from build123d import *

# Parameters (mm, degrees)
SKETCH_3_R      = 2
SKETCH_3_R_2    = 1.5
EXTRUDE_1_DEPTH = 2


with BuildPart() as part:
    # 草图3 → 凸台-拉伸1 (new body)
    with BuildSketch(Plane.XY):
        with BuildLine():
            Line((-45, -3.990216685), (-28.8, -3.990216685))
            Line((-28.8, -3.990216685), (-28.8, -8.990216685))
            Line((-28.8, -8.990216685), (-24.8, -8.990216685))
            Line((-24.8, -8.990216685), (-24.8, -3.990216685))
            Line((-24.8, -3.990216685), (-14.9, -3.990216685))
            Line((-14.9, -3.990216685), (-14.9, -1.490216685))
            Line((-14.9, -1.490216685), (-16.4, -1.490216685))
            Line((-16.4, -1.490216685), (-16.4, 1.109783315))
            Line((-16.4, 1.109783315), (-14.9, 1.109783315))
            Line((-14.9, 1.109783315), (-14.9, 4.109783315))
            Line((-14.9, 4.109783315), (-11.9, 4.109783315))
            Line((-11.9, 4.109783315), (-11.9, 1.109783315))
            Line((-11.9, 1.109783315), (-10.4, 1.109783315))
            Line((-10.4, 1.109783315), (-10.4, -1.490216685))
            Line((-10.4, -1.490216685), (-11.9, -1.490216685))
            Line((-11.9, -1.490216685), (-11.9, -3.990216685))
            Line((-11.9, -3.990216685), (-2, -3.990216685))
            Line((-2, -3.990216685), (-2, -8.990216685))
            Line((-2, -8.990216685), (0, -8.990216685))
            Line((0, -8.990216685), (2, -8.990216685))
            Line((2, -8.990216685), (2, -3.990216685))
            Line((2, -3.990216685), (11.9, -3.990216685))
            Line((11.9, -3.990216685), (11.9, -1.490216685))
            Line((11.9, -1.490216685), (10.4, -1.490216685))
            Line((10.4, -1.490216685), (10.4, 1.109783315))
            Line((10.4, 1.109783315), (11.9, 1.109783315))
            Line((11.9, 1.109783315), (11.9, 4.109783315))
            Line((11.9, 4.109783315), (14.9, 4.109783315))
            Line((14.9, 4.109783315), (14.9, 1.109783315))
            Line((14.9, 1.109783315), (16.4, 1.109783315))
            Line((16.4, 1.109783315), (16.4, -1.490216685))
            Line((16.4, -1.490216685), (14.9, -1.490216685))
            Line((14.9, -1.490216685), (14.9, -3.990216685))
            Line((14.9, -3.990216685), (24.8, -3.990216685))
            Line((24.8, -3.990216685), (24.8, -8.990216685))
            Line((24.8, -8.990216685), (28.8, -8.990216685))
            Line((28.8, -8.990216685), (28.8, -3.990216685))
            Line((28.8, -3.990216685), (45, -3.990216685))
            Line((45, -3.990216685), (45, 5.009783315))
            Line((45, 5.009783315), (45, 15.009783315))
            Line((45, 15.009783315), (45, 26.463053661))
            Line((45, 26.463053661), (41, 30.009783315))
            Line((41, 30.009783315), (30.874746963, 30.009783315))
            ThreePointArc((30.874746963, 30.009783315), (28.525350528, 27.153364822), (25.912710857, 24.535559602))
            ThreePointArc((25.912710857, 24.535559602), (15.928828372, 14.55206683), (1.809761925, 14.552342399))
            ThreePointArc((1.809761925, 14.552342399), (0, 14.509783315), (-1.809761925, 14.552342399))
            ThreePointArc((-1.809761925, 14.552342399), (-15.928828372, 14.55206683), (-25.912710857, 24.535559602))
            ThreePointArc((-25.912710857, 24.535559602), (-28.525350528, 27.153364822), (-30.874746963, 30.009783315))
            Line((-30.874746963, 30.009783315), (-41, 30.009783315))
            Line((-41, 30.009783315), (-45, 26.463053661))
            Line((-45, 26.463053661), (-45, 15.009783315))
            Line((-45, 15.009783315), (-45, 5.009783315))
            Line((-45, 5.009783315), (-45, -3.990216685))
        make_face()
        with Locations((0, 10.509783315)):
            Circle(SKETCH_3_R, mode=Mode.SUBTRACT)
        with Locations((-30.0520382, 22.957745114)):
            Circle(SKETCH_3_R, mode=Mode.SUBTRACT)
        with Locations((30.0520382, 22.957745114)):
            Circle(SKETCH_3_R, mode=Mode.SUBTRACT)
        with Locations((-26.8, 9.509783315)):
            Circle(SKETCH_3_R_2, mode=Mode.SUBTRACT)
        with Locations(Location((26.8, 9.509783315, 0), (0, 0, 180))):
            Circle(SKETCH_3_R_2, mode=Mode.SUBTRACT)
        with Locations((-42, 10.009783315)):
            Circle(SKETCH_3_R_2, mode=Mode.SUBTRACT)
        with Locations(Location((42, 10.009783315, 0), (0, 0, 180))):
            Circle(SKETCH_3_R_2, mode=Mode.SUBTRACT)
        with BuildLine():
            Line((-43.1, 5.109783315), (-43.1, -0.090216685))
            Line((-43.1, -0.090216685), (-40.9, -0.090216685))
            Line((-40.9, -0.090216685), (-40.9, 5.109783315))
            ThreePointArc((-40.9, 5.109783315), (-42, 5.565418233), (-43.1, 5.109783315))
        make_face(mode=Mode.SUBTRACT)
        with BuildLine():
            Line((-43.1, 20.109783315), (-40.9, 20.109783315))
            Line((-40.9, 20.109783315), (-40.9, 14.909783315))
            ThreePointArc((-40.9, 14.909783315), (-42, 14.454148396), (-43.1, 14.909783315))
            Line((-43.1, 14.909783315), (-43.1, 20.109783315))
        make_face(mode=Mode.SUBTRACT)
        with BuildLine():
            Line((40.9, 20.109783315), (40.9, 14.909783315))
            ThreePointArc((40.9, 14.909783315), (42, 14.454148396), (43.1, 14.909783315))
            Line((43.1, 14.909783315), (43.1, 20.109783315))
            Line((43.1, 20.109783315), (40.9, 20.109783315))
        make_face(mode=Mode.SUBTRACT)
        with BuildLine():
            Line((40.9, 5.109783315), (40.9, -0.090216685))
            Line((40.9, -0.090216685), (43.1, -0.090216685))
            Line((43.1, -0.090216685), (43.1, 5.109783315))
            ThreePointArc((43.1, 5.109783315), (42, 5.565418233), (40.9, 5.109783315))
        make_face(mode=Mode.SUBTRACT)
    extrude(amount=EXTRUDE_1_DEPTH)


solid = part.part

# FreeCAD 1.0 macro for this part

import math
import FreeCAD as App
import Part
import Sketcher

doc = App.newDocument("Part")
body = doc.addObject("PartDesign::Body", "Body")

sketch1 = body.newObject("Sketcher::SketchObject", "Sketch")
sketch1.AttachmentSupport = (doc.getObject("XY_Plane"), [""])
sketch1.MapMode = "FlatFace"
sketch1.addGeometry([
    Part.LineSegment(App.Vector(-45, -4, 0), App.Vector(-28.8, -4, 0)),
    Part.LineSegment(App.Vector(-28.8, -4, 0), App.Vector(-28.8, -9, 0)),
    Part.LineSegment(App.Vector(-28.8, -9, 0), App.Vector(-24.8, -9, 0)),
    Part.LineSegment(App.Vector(-24.8, -9, 0), App.Vector(-24.8, -4, 0)),
    Part.LineSegment(App.Vector(-24.8, -4, 0), App.Vector(-14.9, -4, 0)),
    Part.LineSegment(App.Vector(-14.9, -4, 0), App.Vector(-14.9, -1.5, 0)),
    Part.LineSegment(App.Vector(-14.9, -1.5, 0), App.Vector(-16.4, -1.5, 0)),
    Part.LineSegment(App.Vector(-16.4, -1.5, 0), App.Vector(-16.4, 1.1, 0)),
    Part.LineSegment(App.Vector(-16.4, 1.1, 0), App.Vector(-14.9, 1.1, 0)),
    Part.LineSegment(App.Vector(-14.9, 1.1, 0), App.Vector(-14.9, 4.1, 0)),
    Part.LineSegment(App.Vector(-14.9, 4.1, 0), App.Vector(-11.9, 4.1, 0)),
    Part.LineSegment(App.Vector(-11.9, 4.1, 0), App.Vector(-11.9, 1.1, 0)),
    Part.LineSegment(App.Vector(-11.9, 1.1, 0), App.Vector(-10.4, 1.1, 0)),
    Part.LineSegment(App.Vector(-10.4, 1.1, 0), App.Vector(-10.4, -1.5, 0)),
    Part.LineSegment(App.Vector(-10.4, -1.5, 0), App.Vector(-11.9, -1.5, 0)),
    Part.LineSegment(App.Vector(-11.9, -1.5, 0), App.Vector(-11.9, -4, 0)),
    Part.LineSegment(App.Vector(-11.9, -4, 0), App.Vector(-2, -4, 0)),
    Part.LineSegment(App.Vector(-2, -4, 0), App.Vector(-2, -9, 0)),
    Part.LineSegment(App.Vector(-2, -9, 0), App.Vector(2, -9, 0)),
    Part.LineSegment(App.Vector(2, -9, 0), App.Vector(2, -4, 0)),
    Part.LineSegment(App.Vector(2, -4, 0), App.Vector(11.9, -4, 0)),
    Part.LineSegment(App.Vector(11.9, -4, 0), App.Vector(11.9, -1.5, 0)),
    Part.LineSegment(App.Vector(11.9, -1.5, 0), App.Vector(10.4, -1.5, 0)),
    Part.LineSegment(App.Vector(10.4, -1.5, 0), App.Vector(10.4, 1.1, 0)),
    Part.LineSegment(App.Vector(10.4, 1.1, 0), App.Vector(11.9, 1.1, 0)),
    Part.LineSegment(App.Vector(11.9, 1.1, 0), App.Vector(11.9, 4.1, 0)),
    Part.LineSegment(App.Vector(11.9, 4.1, 0), App.Vector(14.9, 4.1, 0)),
    Part.LineSegment(App.Vector(14.9, 4.1, 0), App.Vector(14.9, 1.1, 0)),
    Part.LineSegment(App.Vector(14.9, 1.1, 0), App.Vector(16.4, 1.1, 0)),
    Part.LineSegment(App.Vector(16.4, 1.1, 0), App.Vector(16.4, -1.5, 0)),
    Part.LineSegment(App.Vector(16.4, -1.5, 0), App.Vector(14.9, -1.5, 0)),
    Part.LineSegment(App.Vector(14.9, -1.5, 0), App.Vector(14.9, -4, 0)),
    Part.LineSegment(App.Vector(14.9, -4, 0), App.Vector(24.8, -4, 0)),
    Part.LineSegment(App.Vector(24.8, -4, 0), App.Vector(24.8, -9, 0)),
    Part.LineSegment(App.Vector(24.8, -9, 0), App.Vector(28.8, -9, 0)),
    Part.LineSegment(App.Vector(28.8, -9, 0), App.Vector(28.8, -4, 0)),
    Part.LineSegment(App.Vector(28.8, -4, 0), App.Vector(45, -4, 0)),
    Part.LineSegment(App.Vector(45, -4, 0), App.Vector(45, 26.5, 0)),
    Part.LineSegment(App.Vector(45, 26.5, 0), App.Vector(41, 30, 0)),
    Part.LineSegment(App.Vector(41, 30, 0), App.Vector(30.9, 30, 0)),
    Part.ArcOfCircle(Part.Circle(App.Vector(0, 53, 0), App.Vector(0, 0, 1), 38.5), math.radians(-47.7), math.radians(-36.68)),
    Part.ArcOfCircle(Part.Circle(App.Vector(8.9, 31.6, 0), App.Vector(0, 0, 1), 18.4), math.radians(-113), math.radians(-23)),
    Part.ArcOfCircle(Part.Circle(App.Vector(0, 53, 0), App.Vector(0, 0, 1), 38.5), math.radians(-92.69), math.radians(-87.31)),
    Part.ArcOfCircle(Part.Circle(App.Vector(-8.9, 31.6, 0), App.Vector(0, 0, 1), 18.4), math.radians(-157), math.radians(-67)),
    Part.ArcOfCircle(Part.Circle(App.Vector(0, 53, 0), App.Vector(0, 0, 1), 38.5), math.radians(-143.32), math.radians(-132.3)),
    Part.LineSegment(App.Vector(-30.9, 30, 0), App.Vector(-41, 30, 0)),
    Part.LineSegment(App.Vector(-41, 30, 0), App.Vector(-45, 26.5, 0)),
    Part.LineSegment(App.Vector(-45, 26.5, 0), App.Vector(-45, -4, 0)),
    Part.LineSegment(App.Vector(-43.1, -0.1, 0), App.Vector(-43.1, 5.1, 0)),
    Part.ArcOfCircle(Part.Circle(App.Vector(-42, 4, 0), App.Vector(0, 0, 1), 1.6), math.radians(45), math.radians(135)),
    Part.LineSegment(App.Vector(-40.9, 5.1, 0), App.Vector(-40.9, -0.1, 0)),
    Part.LineSegment(App.Vector(-40.9, -0.1, 0), App.Vector(-43.1, -0.1, 0)),
    Part.Circle(App.Vector(-42, 10, 0), App.Vector(0, 0, 1), 1.5),
    Part.Circle(App.Vector(-26.8, 9.5, 0), App.Vector(0, 0, 1), 1.5),
    Part.LineSegment(App.Vector(40.9, -0.1, 0), App.Vector(40.9, 5.1, 0)),
    Part.ArcOfCircle(Part.Circle(App.Vector(42, 4, 0), App.Vector(0, 0, 1), 1.6), math.radians(45), math.radians(135)),
    Part.LineSegment(App.Vector(43.1, 5.1, 0), App.Vector(43.1, -0.1, 0)),
    Part.LineSegment(App.Vector(43.1, -0.1, 0), App.Vector(40.9, -0.1, 0)),
    Part.Circle(App.Vector(0, 10.5, 0), App.Vector(0, 0, 1), 2),
    Part.Circle(App.Vector(26.8, 9.5, 0), App.Vector(0, 0, 1), 1.5),
    Part.Circle(App.Vector(42, 10, 0), App.Vector(0, 0, 1), 1.5),
    Part.LineSegment(App.Vector(-43.1, 14.9, 0), App.Vector(-43.1, 20.1, 0)),
    Part.LineSegment(App.Vector(-43.1, 20.1, 0), App.Vector(-40.9, 20.1, 0)),
    Part.LineSegment(App.Vector(-40.9, 20.1, 0), App.Vector(-40.9, 14.9, 0)),
    Part.ArcOfCircle(Part.Circle(App.Vector(-42, 16, 0), App.Vector(0, 0, 1), 1.6), math.radians(-135), math.radians(-45)),
    Part.Circle(App.Vector(-30.1, 23, 0), App.Vector(0, 0, 1), 2),
    Part.LineSegment(App.Vector(40.9, 14.9, 0), App.Vector(40.9, 20.1, 0)),
    Part.LineSegment(App.Vector(40.9, 20.1, 0), App.Vector(43.1, 20.1, 0)),
    Part.LineSegment(App.Vector(43.1, 20.1, 0), App.Vector(43.1, 14.9, 0)),
    Part.ArcOfCircle(Part.Circle(App.Vector(42, 16, 0), App.Vector(0, 0, 1), 1.6), math.radians(-135), math.radians(-45)),
    Part.Circle(App.Vector(30.1, 23, 0), App.Vector(0, 0, 1), 2),
], False)
sketch1.addConstraint([
    Sketcher.Constraint("Coincident", 0, 2, 1, 1),
    Sketcher.Constraint("Coincident", 1, 2, 2, 1),
    Sketcher.Constraint("Coincident", 2, 2, 3, 1),
    Sketcher.Constraint("Coincident", 3, 2, 4, 1),
    Sketcher.Constraint("Coincident", 4, 2, 5, 1),
    Sketcher.Constraint("Coincident", 5, 2, 6, 1),
    Sketcher.Constraint("Coincident", 6, 2, 7, 1),
    Sketcher.Constraint("Coincident", 7, 2, 8, 1),
    Sketcher.Constraint("Coincident", 8, 2, 9, 1),
    Sketcher.Constraint("Coincident", 9, 2, 10, 1),
    Sketcher.Constraint("Coincident", 10, 2, 11, 1),
    Sketcher.Constraint("Coincident", 11, 2, 12, 1),
    Sketcher.Constraint("Coincident", 12, 2, 13, 1),
    Sketcher.Constraint("Coincident", 13, 2, 14, 1),
    Sketcher.Constraint("Coincident", 14, 2, 15, 1),
    Sketcher.Constraint("Coincident", 15, 2, 16, 1),
    Sketcher.Constraint("Coincident", 16, 2, 17, 1),
    Sketcher.Constraint("Coincident", 17, 2, 18, 1),
    Sketcher.Constraint("Coincident", 18, 2, 19, 1),
    Sketcher.Constraint("Coincident", 19, 2, 20, 1),
    Sketcher.Constraint("Coincident", 20, 2, 21, 1),
    Sketcher.Constraint("Coincident", 21, 2, 22, 1),
    Sketcher.Constraint("Coincident", 22, 2, 23, 1),
    Sketcher.Constraint("Coincident", 23, 2, 24, 1),
    Sketcher.Constraint("Coincident", 24, 2, 25, 1),
    Sketcher.Constraint("Coincident", 25, 2, 26, 1),
    Sketcher.Constraint("Coincident", 26, 2, 27, 1),
    Sketcher.Constraint("Coincident", 27, 2, 28, 1),
    Sketcher.Constraint("Coincident", 28, 2, 29, 1),
    Sketcher.Constraint("Coincident", 29, 2, 30, 1),
    Sketcher.Constraint("Coincident", 30, 2, 31, 1),
    Sketcher.Constraint("Coincident", 31, 2, 32, 1),
    Sketcher.Constraint("Coincident", 32, 2, 33, 1),
    Sketcher.Constraint("Coincident", 33, 2, 34, 1),
    Sketcher.Constraint("Coincident", 34, 2, 35, 1),
    Sketcher.Constraint("Coincident", 35, 2, 36, 1),
    Sketcher.Constraint("Coincident", 36, 2, 37, 1),
    Sketcher.Constraint("Coincident", 37, 2, 38, 1),
    Sketcher.Constraint("Coincident", 38, 2, 39, 1),
    Sketcher.Constraint("Coincident", 39, 2, 40, 2),
    Sketcher.Constraint("Coincident", 40, 1, 41, 2),
    Sketcher.Constraint("Coincident", 41, 1, 42, 2),
    Sketcher.Constraint("Coincident", 42, 1, 43, 2),
    Sketcher.Constraint("Coincident", 43, 1, 44, 2),
    Sketcher.Constraint("Coincident", 44, 1, 45, 1),
    Sketcher.Constraint("Coincident", 45, 2, 46, 1),
    Sketcher.Constraint("Coincident", 46, 2, 47, 1),
    Sketcher.Constraint("Coincident", 47, 2, 0, 1),
    Sketcher.Constraint("Coincident", 48, 2, 49, 2),
    Sketcher.Constraint("Coincident", 49, 1, 50, 1),
    Sketcher.Constraint("Coincident", 50, 2, 51, 1),
    Sketcher.Constraint("Coincident", 51, 2, 48, 1),
    Sketcher.Constraint("Coincident", 54, 2, 55, 2),
    Sketcher.Constraint("Coincident", 55, 1, 56, 1),
    Sketcher.Constraint("Coincident", 56, 2, 57, 1),
    Sketcher.Constraint("Coincident", 57, 2, 54, 1),
    Sketcher.Constraint("Coincident", 61, 2, 62, 1),
    Sketcher.Constraint("Coincident", 62, 2, 63, 1),
    Sketcher.Constraint("Coincident", 63, 2, 64, 2),
    Sketcher.Constraint("Coincident", 64, 1, 61, 1),
    Sketcher.Constraint("Coincident", 66, 2, 67, 1),
    Sketcher.Constraint("Coincident", 67, 2, 68, 1),
    Sketcher.Constraint("Coincident", 68, 2, 69, 2),
    Sketcher.Constraint("Coincident", 69, 1, 66, 1),
    Sketcher.Constraint("Horizontal", 0),
    Sketcher.Constraint("Vertical", 1),
    Sketcher.Constraint("Horizontal", 2),
    Sketcher.Constraint("Vertical", 3),
    Sketcher.Constraint("Horizontal", 4),
    Sketcher.Constraint("Vertical", 5),
    Sketcher.Constraint("Horizontal", 6),
    Sketcher.Constraint("Vertical", 7),
    Sketcher.Constraint("Horizontal", 8),
    Sketcher.Constraint("Vertical", 9),
    Sketcher.Constraint("Horizontal", 10),
    Sketcher.Constraint("Vertical", 11),
    Sketcher.Constraint("Horizontal", 12),
    Sketcher.Constraint("Vertical", 13),
    Sketcher.Constraint("Horizontal", 14),
    Sketcher.Constraint("Vertical", 15),
    Sketcher.Constraint("Horizontal", 16),
    Sketcher.Constraint("Vertical", 17),
    Sketcher.Constraint("Horizontal", 18),
    Sketcher.Constraint("Vertical", 19),
    Sketcher.Constraint("Horizontal", 20),
    Sketcher.Constraint("Vertical", 21),
    Sketcher.Constraint("Horizontal", 22),
    Sketcher.Constraint("Vertical", 23),
    Sketcher.Constraint("Horizontal", 24),
    Sketcher.Constraint("Vertical", 25),
    Sketcher.Constraint("Horizontal", 26),
    Sketcher.Constraint("Vertical", 27),
    Sketcher.Constraint("Horizontal", 28),
    Sketcher.Constraint("Vertical", 29),
    Sketcher.Constraint("Horizontal", 30),
    Sketcher.Constraint("Vertical", 31),
    Sketcher.Constraint("Horizontal", 32),
    Sketcher.Constraint("Vertical", 33),
    Sketcher.Constraint("Horizontal", 34),
    Sketcher.Constraint("Vertical", 35),
    Sketcher.Constraint("Horizontal", 36),
    Sketcher.Constraint("Vertical", 37),
    Sketcher.Constraint("Horizontal", 39),
    Sketcher.Constraint("Horizontal", 45),
    Sketcher.Constraint("Vertical", 47),
    Sketcher.Constraint("Vertical", 48),
    Sketcher.Constraint("Vertical", 50),
    Sketcher.Constraint("Horizontal", 51),
    Sketcher.Constraint("Vertical", 54),
    Sketcher.Constraint("Vertical", 56),
    Sketcher.Constraint("Horizontal", 57),
    Sketcher.Constraint("Vertical", 61),
    Sketcher.Constraint("Horizontal", 62),
    Sketcher.Constraint("Vertical", 63),
    Sketcher.Constraint("Vertical", 66),
    Sketcher.Constraint("Horizontal", 67),
    Sketcher.Constraint("Vertical", 68),
    Sketcher.Constraint("Coincident", 42, 3, 40, 3),
    Sketcher.Constraint("Coincident", 44, 3, 40, 3),
    Sketcher.Constraint("Equal", 40, 42),
    Sketcher.Constraint("Equal", 41, 43),
    Sketcher.Constraint("Equal", 42, 44),
    Sketcher.Constraint("Equal", 52, 53),
    Sketcher.Constraint("Equal", 49, 55),
    Sketcher.Constraint("Equal", 53, 59),
    Sketcher.Constraint("Equal", 59, 60),
    Sketcher.Constraint("Equal", 55, 64),
    Sketcher.Constraint("Equal", 58, 65),
    Sketcher.Constraint("Equal", 64, 69),
    Sketcher.Constraint("Equal", 65, 70),
    Sketcher.Constraint("Symmetric", 41, 3, 43, 3, -2),
    Sketcher.Constraint("Symmetric", 49, 3, 55, 3, -2),
    Sketcher.Constraint("Symmetric", 53, 3, 59, 3, -2),
    Sketcher.Constraint("Symmetric", 52, 3, 60, 3, -2),
    Sketcher.Constraint("Symmetric", 64, 3, 69, 3, -2),
    Sketcher.Constraint("Symmetric", 65, 3, 70, 3, -2),
    Sketcher.Constraint("Symmetric", 16, 2, 19, 2, -2),
    Sketcher.Constraint("Symmetric", 14, 2, 21, 2, -2),
    Sketcher.Constraint("Symmetric", 12, 2, 23, 2, -2),
    Sketcher.Constraint("Symmetric", 10, 2, 25, 2, -2),
    Sketcher.Constraint("Symmetric", 8, 2, 27, 2, -2),
    Sketcher.Constraint("Symmetric", 6, 2, 29, 2, -2),
    Sketcher.Constraint("Symmetric", 4, 2, 31, 2, -2),
    Sketcher.Constraint("Symmetric", 2, 2, 33, 2, -2),
    Sketcher.Constraint("Symmetric", 0, 2, 35, 2, -2),
    Sketcher.Constraint("Symmetric", 39, 2, 44, 1, -2),
    Sketcher.Constraint("Symmetric", 37, 2, 46, 2, -2),
    Sketcher.Constraint("Symmetric", 51, 2, 56, 2, -2),
    Sketcher.Constraint("Symmetric", 62, 2, 66, 2, -2),
    Sketcher.Constraint("PointOnObject", 58, 3, -2),
    Sketcher.Constraint("Horizontal", 0, 2, 3, 2),
    Sketcher.Constraint("Horizontal", 8, 2, 11, 2),
    Sketcher.Constraint("Horizontal", 6, 2, 13, 2),
    Sketcher.Constraint("Horizontal", 4, 2, 15, 2),
    Sketcher.Constraint("Horizontal", 2, 2, 17, 2),
    Sketcher.Constraint("Horizontal", 48, 2, 49, 1),
    Sketcher.Constraint("Horizontal", 49, 1, 54, 2),
    Sketcher.Constraint("Horizontal", 63, 2, 64, 1),
    Sketcher.Constraint("Horizontal", 64, 1, 68, 2),
    Sketcher.Constraint("Vertical", 49, 3, 52, 3),
    Sketcher.Constraint("Vertical", 52, 3, 64, 3),
    Sketcher.Constraint("Vertical", 5, 2, 8, 2),
    Sketcher.Constraint("Vertical", 11, 2, 14, 2),
    Sketcher.Constraint("Vertical", 51, 2, 61, 2),
    Sketcher.Constraint("Equal", 8, 12),
    Sketcher.Constraint("Equal", 4, 16),
    Sketcher.Constraint("Equal", 2, 18),
    Sketcher.Constraint("Equal", 39, 45),
    Sketcher.Constraint("Equal", 26, 9),
    Sketcher.Constraint("Equal", 56, 61),
    Sketcher.Constraint("Diameter", 52, 3.0),
    Sketcher.Constraint("Diameter", 58, 4.0),
    Sketcher.Constraint("Radius", 40, 38.5),
    Sketcher.Constraint("DistanceX", 2, 1, 2, 2, 4.0),
    Sketcher.Constraint("DistanceX", 10, 1, 10, 2, 3.0),
    Sketcher.Constraint("DistanceY", 1, 2, 1, 1, 5.0),
    Sketcher.Constraint("DistanceX", 0, 1, 0, 2, 16.2),
    Sketcher.Constraint("DistanceX", 4, 1, 4, 2, 9.9),
    Sketcher.Constraint("DistanceX", 6, 2, 6, 1, 1.5),
    Sketcher.Constraint("DistanceX", 51, 2, 51, 1, 2.2),
    Sketcher.Constraint("DistanceY", 5, 1, 5, 2, 2.5),
    Sketcher.Constraint("DistanceY", 7, 1, 7, 2, 2.6),
    Sketcher.Constraint("DistanceY", 48, 1, 48, 2, 5.2),
    Sketcher.Constraint("DistanceX", 49, 3, -1, 1, 42.0),
    Sketcher.Constraint("DistanceX", -1, 1, 38, 2, 41.0),
    Sketcher.Constraint("DistanceX", 53, 3, -1, 1, 26.8),
    Sketcher.Constraint("Radius", 41, 18.447449),
    Sketcher.Constraint("Radius", 49, 1.555635),
    Sketcher.Constraint("DistanceY", 37, 1, 37, 2, 30.45327),
    Sketcher.Constraint("Distance", 38, 5.34596),
    Sketcher.Constraint("DistanceX", 39, 2, 39, 1, 10.125253),
    Sketcher.Constraint("DistanceX", 65, 3, -1, 1, 30.052038),
    Sketcher.Constraint("DistanceX", -1, 1, 40, 1, 25.912711),
    Sketcher.Constraint("DistanceY", -1, 1, 40, 1, 24.53556),
    Sketcher.Constraint("DistanceX", -1, 1, 41, 1, 1.809762),
    Sketcher.Constraint("DistanceY", -1, 1, 49, 3, 4.009783),
    Sketcher.Constraint("DistanceY", -1, 1, 52, 3, 10.009783),
    Sketcher.Constraint("DistanceY", -1, 1, 53, 3, 9.509783),
    Sketcher.Constraint("DistanceY", -1, 1, 58, 3, 10.509783),
    Sketcher.Constraint("DistanceY", -1, 1, 64, 3, 16.009783),
    Sketcher.Constraint("DistanceY", -1, 1, 65, 3, 22.957745),
])
pad1 = body.newObject("PartDesign::Pad", "Pad")
pad1.Profile = sketch1
pad1.Length = 2

doc.recompute()
